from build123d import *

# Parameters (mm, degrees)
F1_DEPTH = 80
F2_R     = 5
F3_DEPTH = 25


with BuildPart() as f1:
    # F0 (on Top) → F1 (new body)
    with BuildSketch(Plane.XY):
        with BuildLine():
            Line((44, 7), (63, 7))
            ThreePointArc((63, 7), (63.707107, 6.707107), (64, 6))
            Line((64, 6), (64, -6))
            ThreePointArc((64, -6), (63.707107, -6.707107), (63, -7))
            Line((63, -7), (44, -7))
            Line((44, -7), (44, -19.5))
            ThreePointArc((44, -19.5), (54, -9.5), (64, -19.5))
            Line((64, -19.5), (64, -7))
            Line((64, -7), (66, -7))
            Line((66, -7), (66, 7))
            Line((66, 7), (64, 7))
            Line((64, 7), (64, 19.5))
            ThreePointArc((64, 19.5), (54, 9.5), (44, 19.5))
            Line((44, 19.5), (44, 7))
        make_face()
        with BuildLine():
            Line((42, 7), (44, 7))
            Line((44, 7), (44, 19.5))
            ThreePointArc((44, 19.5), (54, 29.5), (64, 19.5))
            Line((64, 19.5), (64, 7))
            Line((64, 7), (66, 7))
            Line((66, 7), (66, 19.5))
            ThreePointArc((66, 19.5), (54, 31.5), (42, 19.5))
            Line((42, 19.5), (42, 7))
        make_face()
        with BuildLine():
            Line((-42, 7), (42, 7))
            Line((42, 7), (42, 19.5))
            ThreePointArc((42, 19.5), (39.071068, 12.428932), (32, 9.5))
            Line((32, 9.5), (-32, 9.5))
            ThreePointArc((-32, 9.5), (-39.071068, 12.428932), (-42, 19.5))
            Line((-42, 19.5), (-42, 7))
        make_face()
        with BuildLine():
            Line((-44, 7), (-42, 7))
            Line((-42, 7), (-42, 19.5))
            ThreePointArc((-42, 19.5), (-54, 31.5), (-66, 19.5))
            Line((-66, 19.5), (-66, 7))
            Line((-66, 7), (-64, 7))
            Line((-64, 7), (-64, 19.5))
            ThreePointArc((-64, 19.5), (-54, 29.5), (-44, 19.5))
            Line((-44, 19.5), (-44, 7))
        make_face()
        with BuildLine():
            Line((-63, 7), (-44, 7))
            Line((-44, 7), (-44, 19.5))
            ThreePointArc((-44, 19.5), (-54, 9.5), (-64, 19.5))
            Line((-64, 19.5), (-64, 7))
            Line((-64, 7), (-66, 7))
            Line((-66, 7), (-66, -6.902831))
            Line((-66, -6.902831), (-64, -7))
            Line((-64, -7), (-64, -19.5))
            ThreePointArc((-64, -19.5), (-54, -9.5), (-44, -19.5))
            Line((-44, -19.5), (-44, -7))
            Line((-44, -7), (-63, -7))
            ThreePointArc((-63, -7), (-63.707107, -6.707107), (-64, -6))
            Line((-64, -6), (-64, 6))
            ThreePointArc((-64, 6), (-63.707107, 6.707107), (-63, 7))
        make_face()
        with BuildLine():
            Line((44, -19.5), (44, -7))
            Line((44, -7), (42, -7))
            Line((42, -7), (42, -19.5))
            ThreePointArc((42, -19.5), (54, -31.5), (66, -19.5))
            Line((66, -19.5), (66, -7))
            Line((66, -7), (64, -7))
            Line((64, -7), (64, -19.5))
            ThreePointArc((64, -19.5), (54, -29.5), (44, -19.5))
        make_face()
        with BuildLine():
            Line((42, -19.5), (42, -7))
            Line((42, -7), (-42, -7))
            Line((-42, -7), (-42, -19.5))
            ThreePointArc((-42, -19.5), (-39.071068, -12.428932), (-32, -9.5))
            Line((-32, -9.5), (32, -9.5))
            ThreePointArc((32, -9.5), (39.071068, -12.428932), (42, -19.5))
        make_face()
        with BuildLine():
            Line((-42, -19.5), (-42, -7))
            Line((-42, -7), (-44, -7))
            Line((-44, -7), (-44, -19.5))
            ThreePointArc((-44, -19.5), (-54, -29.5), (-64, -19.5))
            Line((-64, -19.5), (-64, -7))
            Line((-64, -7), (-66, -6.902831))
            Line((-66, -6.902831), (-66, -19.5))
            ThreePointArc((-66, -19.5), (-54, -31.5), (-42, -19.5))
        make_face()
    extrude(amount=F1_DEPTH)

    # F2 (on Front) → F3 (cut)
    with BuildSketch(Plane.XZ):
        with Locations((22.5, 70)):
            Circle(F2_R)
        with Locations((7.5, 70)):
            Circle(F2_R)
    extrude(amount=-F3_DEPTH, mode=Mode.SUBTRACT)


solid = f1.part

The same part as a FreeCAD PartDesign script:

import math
import FreeCAD as App
import Part
import Sketcher
Q = App.Units.Quantity

doc = App.newDocument("Part")
body = doc.addObject("PartDesign::Body", "Body")

sketch1 = doc.addObject("Sketcher::SketchObject", "Sketch")
body.addObject(sketch1)
sketch1.AttachmentSupport = (doc.XY_Plane, [""])
sketch1.MapMode = "FlatFace"
sketch1.addGeometry(Part.ArcOfCircle(Part.Circle(App.Vector(-32.000001, -19.499999, 0), App.Vector(0, 0, 1), 9.999999), math.radians(89.999996), math.radians(180.000004)), False)
sketch1.addGeometry(Part.LineSegment(App.Vector(-32, -9.5, 0), App.Vector(32, -9.5, 0)), False)
sketch1.addGeometry(Part.ArcOfCircle(Part.Circle(App.Vector(32.000001, -19.499999, 0), App.Vector(0, 0, 1), 9.999999), math.radians(-0.000004), math.radians(90.000004)), False)
sketch1.addGeometry(Part.ArcOfCircle(Part.Circle(App.Vector(54, -19.5, 0), App.Vector(0, 0, 1), 12), math.radians(180), math.radians(360)), False)
sketch1.addGeometry(Part.LineSegment(App.Vector(66, -19.5, 0), App.Vector(66, 19.5, 0)), False)
sketch1.addGeometry(Part.ArcOfCircle(Part.Circle(App.Vector(54, 19.5, 0), App.Vector(0, 0, 1), 12), math.radians(0), math.radians(180)), False)
sketch1.addGeometry(Part.ArcOfCircle(Part.Circle(App.Vector(32.000001, 19.499999, 0), App.Vector(0, 0, 1), 9.999999), math.radians(-90.000004), math.radians(0.000004)), False)
sketch1.addGeometry(Part.LineSegment(App.Vector(32, 9.5, 0), App.Vector(-32, 9.5, 0)), False)
sketch1.addGeometry(Part.ArcOfCircle(Part.Circle(App.Vector(-32.000001, 19.499999, 0), App.Vector(0, 0, 1), 9.999999), math.radians(179.999996), math.radians(270.000004)), False)
sketch1.addGeometry(Part.ArcOfCircle(Part.Circle(App.Vector(-54, 19.5, 0), App.Vector(0, 0, 1), 12), math.radians(0), math.radians(180)), False)
sketch1.addGeometry(Part.LineSegment(App.Vector(-66, 19.5, 0), App.Vector(-66, -19.5, 0)), False)
sketch1.addGeometry(Part.ArcOfCircle(Part.Circle(App.Vector(-54, -19.5, 0), App.Vector(0, 0, 1), 12), math.radians(180), math.radians(360)), False)
sketch1.addGeometry(Part.ArcOfCircle(Part.Circle(App.Vector(63.000001, 6.000001, 0), App.Vector(0, 0, 1), 0.999999), math.radians(-0.000043), math.radians(90.000043)), False)
sketch1.addGeometry(Part.LineSegment(App.Vector(64, 6, 0), App.Vector(64, -6, 0)), False)
sketch1.addGeometry(Part.ArcOfCircle(Part.Circle(App.Vector(63.000001, -6.000001, 0), App.Vector(0, 0, 1), 0.999999), math.radians(-90.000043), math.radians(0.000043)), False)
sketch1.addGeometry(Part.LineSegment(App.Vector(63, -7, 0), App.Vector(-63, -7, 0)), False)
sketch1.addGeometry(Part.ArcOfCircle(Part.Circle(App.Vector(-63.000001, -6.000001, 0), App.Vector(0, 0, 1), 0.999999), math.radians(179.999957), math.radians(270.000043)), False)
sketch1.addGeometry(Part.LineSegment(App.Vector(-64, -6, 0), App.Vector(-64, 6, 0)), False)
sketch1.addGeometry(Part.ArcOfCircle(Part.Circle(App.Vector(-63.000001, 6.000001, 0), App.Vector(0, 0, 1), 0.999999), math.radians(89.999957), math.radians(180.000043)), False)
sketch1.addGeometry(Part.LineSegment(App.Vector(-63, 7, 0), App.Vector(63, 7, 0)), False)
sketch1.addGeometry(Part.Circle(App.Vector(-54, -19.5, 0), App.Vector(0, 0, 1), 10), False)
sketch1.addGeometry(Part.Circle(App.Vector(54, -19.5, 0), App.Vector(0, 0, 1), 10), False)
sketch1.addGeometry(Part.Circle(App.Vector(-54, 19.5, 0), App.Vector(0, 0, 1), 10), False)
sketch1.addGeometry(Part.Circle(App.Vector(54, 19.5, 0), App.Vector(0, 0, 1), 10), False)
sketch1.addConstraint(Sketcher.Constraint("Tangent", 0, 1, 1, 1))
sketch1.addConstraint(Sketcher.Constraint("Tangent", 1, 2, 2, 2))
sketch1.addConstraint(Sketcher.Constraint("Tangent", 2, 1, 3, 1))
sketch1.addConstraint(Sketcher.Constraint("Tangent", 3, 2, 4, 1))
sketch1.addConstraint(Sketcher.Constraint("Tangent", 4, 2, 5, 1))
sketch1.addConstraint(Sketcher.Constraint("Tangent", 5, 2, 6, 2))
sketch1.addConstraint(Sketcher.Constraint("Tangent", 6, 1, 7, 1))
sketch1.addConstraint(Sketcher.Constraint("Tangent", 7, 2, 8, 2))
sketch1.addConstraint(Sketcher.Constraint("Tangent", 8, 1, 9, 1))
sketch1.addConstraint(Sketcher.Constraint("Tangent", 9, 2, 10, 1))
sketch1.addConstraint(Sketcher.Constraint("Tangent", 10, 2, 11, 1))
sketch1.addConstraint(Sketcher.Constraint("Tangent", 11, 2, 0, 2))
sketch1.addConstraint(Sketcher.Constraint("Tangent", 12, 1, 13, 1))
sketch1.addConstraint(Sketcher.Constraint("Tangent", 13, 2, 14, 2))
sketch1.addConstraint(Sketcher.Constraint("Tangent", 14, 1, 15, 1))
sketch1.addConstraint(Sketcher.Constraint("Tangent", 15, 2, 16, 2))
sketch1.addConstraint(Sketcher.Constraint("Tangent", 16, 1, 17, 1))
sketch1.addConstraint(Sketcher.Constraint("Tangent", 17, 2, 18, 2))
sketch1.addConstraint(Sketcher.Constraint("Tangent", 18, 1, 19, 1))
sketch1.addConstraint(Sketcher.Constraint("Tangent", 19, 2, 12, 2))
sketch1.addConstraint(Sketcher.Constraint("Horizontal", 1))
sketch1.addConstraint(Sketcher.Constraint("Vertical", 4))
sketch1.addConstraint(Sketcher.Constraint("Horizontal", 7))
sketch1.addConstraint(Sketcher.Constraint("Vertical", 10))
sketch1.addConstraint(Sketcher.Constraint("Vertical", 13))
sketch1.addConstraint(Sketcher.Constraint("Horizontal", 15))
sketch1.addConstraint(Sketcher.Constraint("Vertical", 17))
sketch1.addConstraint(Sketcher.Constraint("Horizontal", 19))
sketch1.addConstraint(Sketcher.Constraint("Coincident", 20, 3, 11, 3))
sketch1.addConstraint(Sketcher.Constraint("Coincident", 21, 3, 3, 3))
sketch1.addConstraint(Sketcher.Constraint("Coincident", 22, 3, 9, 3))
sketch1.addConstraint(Sketcher.Constraint("Coincident", 23, 3, 5, 3))
sketch1.addConstraint(Sketcher.Constraint("Equal", 0, 2))
sketch1.addConstraint(Sketcher.Constraint("Equal", 3, 5))
sketch1.addConstraint(Sketcher.Constraint("Equal", 2, 6))
sketch1.addConstraint(Sketcher.Constraint("Equal", 6, 8))
sketch1.addConstraint(Sketcher.Constraint("Equal", 5, 9))
sketch1.addConstraint(Sketcher.Constraint("Equal", 9, 11))
sketch1.addConstraint(Sketcher.Constraint("Equal", 12, 14))
sketch1.addConstraint(Sketcher.Constraint("Equal", 14, 16))
sketch1.addConstraint(Sketcher.Constraint("Equal", 16, 18))
sketch1.addConstraint(Sketcher.Constraint("Equal", 8, 20))
sketch1.addConstraint(Sketcher.Constraint("Equal", 20, 21))
sketch1.addConstraint(Sketcher.Constraint("Equal", 21, 22))
sketch1.addConstraint(Sketcher.Constraint("Equal", 22, 23))
sketch1.addConstraint(Sketcher.Constraint("Symmetric", 0, 3, 6, 3, -1, 1))
sketch1.addConstraint(Sketcher.Constraint("Symmetric", 12, 3, 16, 3, -1, 1))
sketch1.addConstraint(Sketcher.Constraint("Horizontal", 2, 3, 3, 3))
sketch1.addConstraint(Sketcher.Constraint("Horizontal", 5, 3, 6, 3))
sketch1.addConstraint(Sketcher.Constraint("Horizontal", 8, 3, 9, 3))
sketch1.addConstraint(Sketcher.Constraint("Horizontal", 3, 3, 11, 3))
sketch1.addConstraint(Sketcher.Constraint("Diameter", 20, Q("20 mm")))
sketch1.addConstraint(Sketcher.Constraint("Radius", 3, Q("12 mm")))
sketch1.addConstraint(Sketcher.Constraint("Radius", 12, Q("0.999999 mm")))
sketch1.addConstraint(Sketcher.Constraint("DistanceX", 1, 1, 1, 2, Q("64 mm")))
sketch1.addConstraint(Sketcher.Constraint("DistanceX", 15, 2, 15, 1, Q("126 mm")))
sketch1.addConstraint(Sketcher.Constraint("DistanceY", 4, 1, 4, 2, Q("39 mm")))
sketch1.addConstraint(Sketcher.Constraint("DistanceY", 13, 2, 13, 1, Q("12 mm")))
pad1 = doc.addObject("PartDesign::Pad", "Pad")
body.addObject(pad1)
pad1.Profile = sketch1
pad1.Length = 80

sketch2 = doc.addObject("Sketcher::SketchObject", "Sketch001")
body.addObject(sketch2)
sketch2.AttachmentSupport = (doc.XZ_Plane, [""])
sketch2.MapMode = "FlatFace"
sketch2.addGeometry(Part.Circle(App.Vector(22.5, 70, 0), App.Vector(0, 0, 1), 5), False)
sketch2.addGeometry(Part.Circle(App.Vector(7.5, 70, 0), App.Vector(0, 0, 1), 5), False)
sketch2.addConstraint(Sketcher.Constraint("Equal", 0, 1))
sketch2.addConstraint(Sketcher.Constraint("Horizontal", 0, 3, 1, 3))
sketch2.addConstraint(Sketcher.Constraint("Diameter", 0, Q("10 mm")))
sketch2.addConstraint(Sketcher.Constraint("DistanceY", -1, 1, 0, 3, Q("70 mm")))
sketch2.addConstraint(Sketcher.Constraint("DistanceX", 1, 3, 0, 3, Q("15 mm")))
sketch2.addConstraint(Sketcher.Constraint("DistanceX", -1, 1, 0, 3, Q("22.5 mm")))
pocket1 = doc.addObject("PartDesign::Pocket", "Pocket")
body.addObject(pocket1)
pocket1.Profile = sketch2
pocket1.Length = 25

doc.recompute()
